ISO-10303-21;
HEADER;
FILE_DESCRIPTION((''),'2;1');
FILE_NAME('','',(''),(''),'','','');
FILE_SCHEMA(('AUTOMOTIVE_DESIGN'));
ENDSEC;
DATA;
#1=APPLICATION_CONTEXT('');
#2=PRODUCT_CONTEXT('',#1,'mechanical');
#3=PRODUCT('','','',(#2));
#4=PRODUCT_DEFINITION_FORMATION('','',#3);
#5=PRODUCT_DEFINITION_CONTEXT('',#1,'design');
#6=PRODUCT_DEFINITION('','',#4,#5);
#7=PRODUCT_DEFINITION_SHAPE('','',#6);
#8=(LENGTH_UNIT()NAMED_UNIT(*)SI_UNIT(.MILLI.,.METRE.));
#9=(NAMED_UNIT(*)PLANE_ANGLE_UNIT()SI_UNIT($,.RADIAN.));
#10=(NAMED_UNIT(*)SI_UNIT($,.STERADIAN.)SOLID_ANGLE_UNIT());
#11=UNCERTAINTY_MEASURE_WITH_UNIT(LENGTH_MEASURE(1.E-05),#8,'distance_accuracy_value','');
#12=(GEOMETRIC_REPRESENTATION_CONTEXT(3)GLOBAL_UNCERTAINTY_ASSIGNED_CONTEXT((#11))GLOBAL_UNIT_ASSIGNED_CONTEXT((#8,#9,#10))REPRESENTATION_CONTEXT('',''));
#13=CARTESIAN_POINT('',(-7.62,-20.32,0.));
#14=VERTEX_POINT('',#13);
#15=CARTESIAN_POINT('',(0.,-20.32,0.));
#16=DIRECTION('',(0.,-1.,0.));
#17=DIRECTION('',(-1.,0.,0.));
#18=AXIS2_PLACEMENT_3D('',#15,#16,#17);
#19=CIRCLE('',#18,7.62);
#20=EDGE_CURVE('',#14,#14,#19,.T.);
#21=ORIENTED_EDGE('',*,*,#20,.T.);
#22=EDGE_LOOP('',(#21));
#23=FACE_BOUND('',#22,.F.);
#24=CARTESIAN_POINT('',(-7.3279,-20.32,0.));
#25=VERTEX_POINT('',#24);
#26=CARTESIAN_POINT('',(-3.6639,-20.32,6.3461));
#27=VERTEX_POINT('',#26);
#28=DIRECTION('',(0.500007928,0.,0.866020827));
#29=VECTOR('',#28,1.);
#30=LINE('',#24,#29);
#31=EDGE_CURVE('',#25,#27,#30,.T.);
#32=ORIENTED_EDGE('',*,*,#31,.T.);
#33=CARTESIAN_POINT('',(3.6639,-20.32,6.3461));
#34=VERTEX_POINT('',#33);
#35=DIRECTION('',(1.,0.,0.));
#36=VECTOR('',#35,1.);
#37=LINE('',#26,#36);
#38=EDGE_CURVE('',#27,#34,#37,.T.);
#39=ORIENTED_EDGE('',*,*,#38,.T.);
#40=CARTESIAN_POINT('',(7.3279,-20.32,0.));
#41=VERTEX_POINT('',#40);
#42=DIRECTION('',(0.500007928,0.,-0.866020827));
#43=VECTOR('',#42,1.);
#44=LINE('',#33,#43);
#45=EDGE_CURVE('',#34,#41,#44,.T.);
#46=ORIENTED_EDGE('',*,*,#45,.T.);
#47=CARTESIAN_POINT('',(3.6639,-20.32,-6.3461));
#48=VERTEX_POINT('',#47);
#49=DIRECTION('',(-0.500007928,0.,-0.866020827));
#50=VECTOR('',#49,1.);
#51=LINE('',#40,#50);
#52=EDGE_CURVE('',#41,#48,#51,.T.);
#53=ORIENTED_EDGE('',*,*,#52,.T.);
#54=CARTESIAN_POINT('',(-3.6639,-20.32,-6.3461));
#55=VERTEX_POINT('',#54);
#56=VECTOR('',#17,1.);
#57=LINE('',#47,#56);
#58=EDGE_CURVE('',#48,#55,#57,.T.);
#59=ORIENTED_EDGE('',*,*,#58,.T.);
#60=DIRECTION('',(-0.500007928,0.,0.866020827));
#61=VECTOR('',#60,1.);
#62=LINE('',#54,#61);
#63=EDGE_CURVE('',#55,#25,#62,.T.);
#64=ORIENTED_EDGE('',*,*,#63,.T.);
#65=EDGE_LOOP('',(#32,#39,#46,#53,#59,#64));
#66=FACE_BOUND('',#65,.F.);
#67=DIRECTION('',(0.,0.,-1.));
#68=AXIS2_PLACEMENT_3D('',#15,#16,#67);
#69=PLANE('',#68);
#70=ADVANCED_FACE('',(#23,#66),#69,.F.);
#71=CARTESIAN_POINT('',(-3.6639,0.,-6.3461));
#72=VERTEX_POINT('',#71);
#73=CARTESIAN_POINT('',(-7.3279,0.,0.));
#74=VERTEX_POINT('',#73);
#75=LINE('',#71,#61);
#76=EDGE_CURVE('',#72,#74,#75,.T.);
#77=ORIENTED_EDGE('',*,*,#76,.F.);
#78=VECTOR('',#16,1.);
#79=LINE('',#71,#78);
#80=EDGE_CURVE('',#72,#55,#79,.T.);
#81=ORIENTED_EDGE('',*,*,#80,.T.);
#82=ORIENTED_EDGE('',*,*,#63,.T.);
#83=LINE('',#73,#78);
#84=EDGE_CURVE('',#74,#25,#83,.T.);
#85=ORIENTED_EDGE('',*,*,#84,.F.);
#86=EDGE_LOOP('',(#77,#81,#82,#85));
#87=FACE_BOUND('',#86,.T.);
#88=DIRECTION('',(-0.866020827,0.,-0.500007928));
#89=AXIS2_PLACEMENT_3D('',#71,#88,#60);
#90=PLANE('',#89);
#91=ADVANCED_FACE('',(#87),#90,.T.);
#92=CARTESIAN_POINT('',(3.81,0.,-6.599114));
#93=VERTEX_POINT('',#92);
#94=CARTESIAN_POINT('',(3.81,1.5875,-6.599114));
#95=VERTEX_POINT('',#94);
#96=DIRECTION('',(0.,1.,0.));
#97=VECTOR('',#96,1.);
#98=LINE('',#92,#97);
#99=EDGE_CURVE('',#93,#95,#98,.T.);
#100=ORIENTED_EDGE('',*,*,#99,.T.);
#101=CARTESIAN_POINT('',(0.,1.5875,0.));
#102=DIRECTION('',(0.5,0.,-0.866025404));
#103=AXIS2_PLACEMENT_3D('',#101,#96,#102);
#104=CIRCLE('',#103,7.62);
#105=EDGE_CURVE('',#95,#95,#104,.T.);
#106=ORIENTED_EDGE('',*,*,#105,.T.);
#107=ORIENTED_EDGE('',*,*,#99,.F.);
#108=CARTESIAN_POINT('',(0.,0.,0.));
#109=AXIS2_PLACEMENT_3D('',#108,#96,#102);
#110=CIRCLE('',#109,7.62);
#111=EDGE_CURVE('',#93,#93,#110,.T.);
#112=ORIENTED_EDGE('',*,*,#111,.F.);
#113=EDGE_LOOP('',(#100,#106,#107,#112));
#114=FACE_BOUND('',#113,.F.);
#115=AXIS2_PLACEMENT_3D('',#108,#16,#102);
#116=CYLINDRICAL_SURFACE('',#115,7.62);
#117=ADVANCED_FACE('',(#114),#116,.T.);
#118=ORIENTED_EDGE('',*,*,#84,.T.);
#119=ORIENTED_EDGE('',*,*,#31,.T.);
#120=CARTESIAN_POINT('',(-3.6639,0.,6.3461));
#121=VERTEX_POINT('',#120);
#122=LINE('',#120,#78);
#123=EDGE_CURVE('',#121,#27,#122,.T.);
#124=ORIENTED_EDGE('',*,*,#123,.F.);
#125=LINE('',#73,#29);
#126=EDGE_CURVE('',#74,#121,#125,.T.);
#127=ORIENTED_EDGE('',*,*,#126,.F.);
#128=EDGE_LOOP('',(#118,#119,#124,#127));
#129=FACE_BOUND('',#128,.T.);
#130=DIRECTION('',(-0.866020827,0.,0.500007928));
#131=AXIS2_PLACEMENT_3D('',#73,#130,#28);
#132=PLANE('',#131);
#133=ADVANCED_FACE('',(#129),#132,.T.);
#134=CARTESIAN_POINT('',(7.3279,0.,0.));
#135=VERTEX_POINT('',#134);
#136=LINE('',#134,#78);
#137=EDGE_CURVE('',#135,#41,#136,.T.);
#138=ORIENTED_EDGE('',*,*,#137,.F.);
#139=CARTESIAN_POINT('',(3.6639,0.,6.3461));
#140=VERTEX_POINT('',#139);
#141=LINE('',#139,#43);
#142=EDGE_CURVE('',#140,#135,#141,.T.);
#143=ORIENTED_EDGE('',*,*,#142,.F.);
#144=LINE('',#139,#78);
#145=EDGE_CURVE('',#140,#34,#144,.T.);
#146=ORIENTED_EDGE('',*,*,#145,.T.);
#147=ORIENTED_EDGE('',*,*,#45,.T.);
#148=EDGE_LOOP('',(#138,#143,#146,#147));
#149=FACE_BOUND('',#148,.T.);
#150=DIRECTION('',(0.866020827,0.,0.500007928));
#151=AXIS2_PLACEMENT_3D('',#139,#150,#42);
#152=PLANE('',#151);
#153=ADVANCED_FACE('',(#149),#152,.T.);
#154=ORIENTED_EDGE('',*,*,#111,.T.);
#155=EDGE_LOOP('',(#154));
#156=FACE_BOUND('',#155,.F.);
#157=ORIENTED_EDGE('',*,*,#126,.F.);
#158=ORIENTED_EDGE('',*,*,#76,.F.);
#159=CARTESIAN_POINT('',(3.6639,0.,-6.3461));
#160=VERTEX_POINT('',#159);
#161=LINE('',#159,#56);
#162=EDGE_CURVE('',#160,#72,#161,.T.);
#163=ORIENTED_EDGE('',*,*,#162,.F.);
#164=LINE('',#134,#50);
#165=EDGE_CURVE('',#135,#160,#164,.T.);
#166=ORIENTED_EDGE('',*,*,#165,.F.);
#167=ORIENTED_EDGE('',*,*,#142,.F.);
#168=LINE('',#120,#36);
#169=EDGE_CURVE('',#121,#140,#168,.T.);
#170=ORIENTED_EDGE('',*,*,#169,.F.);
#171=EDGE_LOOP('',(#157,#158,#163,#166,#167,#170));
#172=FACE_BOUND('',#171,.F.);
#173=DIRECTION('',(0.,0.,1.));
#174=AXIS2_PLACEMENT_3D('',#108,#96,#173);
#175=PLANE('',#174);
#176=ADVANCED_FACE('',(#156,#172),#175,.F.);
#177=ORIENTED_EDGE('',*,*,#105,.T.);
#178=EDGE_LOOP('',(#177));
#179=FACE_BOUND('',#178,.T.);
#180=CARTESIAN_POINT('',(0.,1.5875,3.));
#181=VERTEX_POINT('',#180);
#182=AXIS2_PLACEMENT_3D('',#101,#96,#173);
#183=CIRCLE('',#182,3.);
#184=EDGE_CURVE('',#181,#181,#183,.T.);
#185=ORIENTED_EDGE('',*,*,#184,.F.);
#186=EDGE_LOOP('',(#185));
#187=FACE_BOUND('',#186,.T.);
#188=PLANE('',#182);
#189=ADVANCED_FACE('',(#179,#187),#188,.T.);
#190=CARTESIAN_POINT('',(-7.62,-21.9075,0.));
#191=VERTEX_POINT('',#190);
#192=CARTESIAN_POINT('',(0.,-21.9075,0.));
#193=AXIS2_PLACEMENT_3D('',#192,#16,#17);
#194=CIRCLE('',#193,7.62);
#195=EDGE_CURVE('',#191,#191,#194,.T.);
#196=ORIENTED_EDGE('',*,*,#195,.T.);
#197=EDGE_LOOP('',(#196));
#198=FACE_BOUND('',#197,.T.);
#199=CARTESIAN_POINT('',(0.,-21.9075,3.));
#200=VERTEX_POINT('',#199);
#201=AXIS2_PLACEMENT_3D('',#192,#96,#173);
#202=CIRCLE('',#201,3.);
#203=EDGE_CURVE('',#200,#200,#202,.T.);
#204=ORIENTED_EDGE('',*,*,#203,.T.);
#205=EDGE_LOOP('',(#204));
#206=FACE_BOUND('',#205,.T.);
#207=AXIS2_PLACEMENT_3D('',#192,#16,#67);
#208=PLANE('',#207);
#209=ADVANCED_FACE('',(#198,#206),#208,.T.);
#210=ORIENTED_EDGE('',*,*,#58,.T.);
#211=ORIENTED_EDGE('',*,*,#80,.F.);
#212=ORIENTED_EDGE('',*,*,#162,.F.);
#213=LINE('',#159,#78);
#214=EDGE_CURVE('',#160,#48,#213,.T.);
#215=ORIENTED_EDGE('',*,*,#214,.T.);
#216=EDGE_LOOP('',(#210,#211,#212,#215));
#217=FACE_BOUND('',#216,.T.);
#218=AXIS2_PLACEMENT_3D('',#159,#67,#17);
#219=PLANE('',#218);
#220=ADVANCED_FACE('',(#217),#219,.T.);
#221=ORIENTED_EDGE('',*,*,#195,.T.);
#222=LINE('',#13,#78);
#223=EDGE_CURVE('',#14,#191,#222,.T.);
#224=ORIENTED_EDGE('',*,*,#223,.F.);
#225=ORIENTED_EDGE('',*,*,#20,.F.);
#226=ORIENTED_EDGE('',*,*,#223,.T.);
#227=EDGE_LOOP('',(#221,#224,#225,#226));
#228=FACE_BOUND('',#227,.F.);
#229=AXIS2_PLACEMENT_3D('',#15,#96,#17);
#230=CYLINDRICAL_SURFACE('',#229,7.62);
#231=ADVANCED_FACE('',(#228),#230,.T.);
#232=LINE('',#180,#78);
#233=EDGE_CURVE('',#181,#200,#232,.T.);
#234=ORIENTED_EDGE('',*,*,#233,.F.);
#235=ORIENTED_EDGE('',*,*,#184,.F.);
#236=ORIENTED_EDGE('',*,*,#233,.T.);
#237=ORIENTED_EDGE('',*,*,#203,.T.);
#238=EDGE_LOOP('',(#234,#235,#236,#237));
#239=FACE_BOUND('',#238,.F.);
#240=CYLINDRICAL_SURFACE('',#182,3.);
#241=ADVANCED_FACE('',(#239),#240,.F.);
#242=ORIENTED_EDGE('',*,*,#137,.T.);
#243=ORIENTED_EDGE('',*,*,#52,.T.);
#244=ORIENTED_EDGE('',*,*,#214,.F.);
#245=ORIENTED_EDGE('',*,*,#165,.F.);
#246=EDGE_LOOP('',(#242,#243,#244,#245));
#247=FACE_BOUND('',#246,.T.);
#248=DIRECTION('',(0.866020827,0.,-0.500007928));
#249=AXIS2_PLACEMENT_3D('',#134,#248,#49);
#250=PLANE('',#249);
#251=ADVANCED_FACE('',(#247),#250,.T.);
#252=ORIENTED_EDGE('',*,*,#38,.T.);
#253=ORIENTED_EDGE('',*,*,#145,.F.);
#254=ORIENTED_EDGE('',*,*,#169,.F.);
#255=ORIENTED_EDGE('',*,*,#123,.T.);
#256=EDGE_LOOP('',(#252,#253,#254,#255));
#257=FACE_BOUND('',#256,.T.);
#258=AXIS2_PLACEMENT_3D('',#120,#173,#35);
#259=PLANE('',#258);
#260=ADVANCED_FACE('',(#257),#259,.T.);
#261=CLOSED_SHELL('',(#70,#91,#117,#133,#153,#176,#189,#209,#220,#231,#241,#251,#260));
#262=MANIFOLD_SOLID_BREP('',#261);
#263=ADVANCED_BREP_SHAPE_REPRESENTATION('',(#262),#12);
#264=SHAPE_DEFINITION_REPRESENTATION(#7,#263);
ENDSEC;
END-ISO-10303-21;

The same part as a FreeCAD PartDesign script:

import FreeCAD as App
import Part
import Sketcher
from FreeCAD import Vector
Q = App.Units.Quantity


def add_polygon(sketch, points):
    """Adds a closed chain of lines whose ends are joined by coincident constraints."""
    first, n = sketch.GeometryCount, len(points)
    for a, b in zip(points, points[1:] + points[:1]):
        sketch.addGeometry(Part.LineSegment(App.Vector(*a, 0), App.Vector(*b, 0)), False)
    for i in range(n):
        sketch.addConstraint(Sketcher.Constraint("Coincident", first + i, 2, first + (i + 1) % n, 1))

doc = App.newDocument("Part")
body = doc.addObject("PartDesign::Body", "Body")

sketch1 = doc.addObject("Sketcher::SketchObject", "Sketch")
body.addObject(sketch1)
sketch1.AttachmentSupport = (doc.XZ_Plane, [""])
sketch1.MapMode = "FlatFace"
add_polygon(sketch1, [(3.6639, 6.3461), (-3.6639, 6.3461), (-7.3279, 0), (-3.6639, -6.3461), (3.6639, -6.3461), (7.3279, 0)])
sketch1.addConstraint([
    Sketcher.Constraint("Horizontal", 0),
    Sketcher.Constraint("Horizontal", 3),
    Sketcher.Constraint("Symmetric", 0, 2, 3, 2, -1, 1),
    Sketcher.Constraint("Symmetric", 1, 2, 4, 2, -1, 1),
    Sketcher.Constraint("PointOnObject", 1, 2, -1),
    Sketcher.Constraint("Parallel", 2, 5),
    Sketcher.Constraint("Vertical", 0, 2, 2, 2),
    Sketcher.Constraint("Angle", 1, Q("-120.0005 deg")),
    Sketcher.Constraint("DistanceX", 0, 2, 0, 1, Q("0.2885 in")),
    Sketcher.Constraint("DistanceX", 1, 2, 4, 2, Q("0.577 in")),
])
pad1 = doc.addObject("PartDesign::Pad", "Pad")
body.addObject(pad1)
pad1.Profile = sketch1
pad1.Length = Q("0.8 in")

sketch2 = doc.addObject("Sketcher::SketchObject", "Sketch001")
body.addObject(sketch2)
sketch2.AttachmentSupport = (doc.XZ_Plane, [""])
sketch2.MapMode = "FlatFace"
sketch2.addGeometry(Part.Circle(Vector(0, 0, 0), Vector(0, 0, 1), 7.62), False)
sketch2.addConstraint([
    Sketcher.Constraint("Coincident", 0, 3, -1, 1),
    Sketcher.Constraint("Diameter", 0, Q("0.6 in")),
])
pad2 = doc.addObject("PartDesign::Pad", "Pad001")
body.addObject(pad2)
pad2.Profile = sketch2
pad2.Length = Q("0.0625 in")
pad2.Reversed = True

sketch3 = doc.addObject("Sketcher::SketchObject", "Sketch002")
body.addObject(sketch3)
sketch3.AttachmentSupport = (doc.XZ_Plane, [""])
sketch3.MapMode = "FlatFace"
sketch3.AttachmentOffset = App.Placement(Vector(0, 0, 0.8 * 25.4), App.Rotation())
sketch3.addGeometry(Part.Circle(Vector(0, 0, 0), Vector(0, 0, 1), 7.62), False)
sketch3.addConstraint([
    Sketcher.Constraint("Coincident", 0, 3, -1, 1),
    Sketcher.Constraint("Diameter", 0, Q("0.6 in")),
])
pad3 = doc.addObject("PartDesign::Pad", "Pad002")
body.addObject(pad3)
pad3.Profile = sketch3
pad3.Length = Q("0.0625 in")

sketch4 = doc.addObject("Sketcher::SketchObject", "Sketch003")
body.addObject(sketch4)
sketch4.AttachmentSupport = (doc.XZ_Plane, [""])
sketch4.MapMode = "FlatFace"
sketch4.AttachmentOffset = App.Placement(Vector(0, 0, -0.0625 * 25.4), App.Rotation())
sketch4.addGeometry(Part.Circle(Vector(0, 0, 0), Vector(0, 0, 1), 3), False)
sketch4.addConstraint([
    Sketcher.Constraint("Coincident", 0, 3, -1, 1),
    Sketcher.Constraint("Diameter", 0, 6.0),
])
pocket1 = doc.addObject("PartDesign::Pocket", "Pocket")
body.addObject(pocket1)
pocket1.Profile = sketch4
pocket1.Type = "UpToFirst"
pocket1.Reversed = True

doc.recompute()
